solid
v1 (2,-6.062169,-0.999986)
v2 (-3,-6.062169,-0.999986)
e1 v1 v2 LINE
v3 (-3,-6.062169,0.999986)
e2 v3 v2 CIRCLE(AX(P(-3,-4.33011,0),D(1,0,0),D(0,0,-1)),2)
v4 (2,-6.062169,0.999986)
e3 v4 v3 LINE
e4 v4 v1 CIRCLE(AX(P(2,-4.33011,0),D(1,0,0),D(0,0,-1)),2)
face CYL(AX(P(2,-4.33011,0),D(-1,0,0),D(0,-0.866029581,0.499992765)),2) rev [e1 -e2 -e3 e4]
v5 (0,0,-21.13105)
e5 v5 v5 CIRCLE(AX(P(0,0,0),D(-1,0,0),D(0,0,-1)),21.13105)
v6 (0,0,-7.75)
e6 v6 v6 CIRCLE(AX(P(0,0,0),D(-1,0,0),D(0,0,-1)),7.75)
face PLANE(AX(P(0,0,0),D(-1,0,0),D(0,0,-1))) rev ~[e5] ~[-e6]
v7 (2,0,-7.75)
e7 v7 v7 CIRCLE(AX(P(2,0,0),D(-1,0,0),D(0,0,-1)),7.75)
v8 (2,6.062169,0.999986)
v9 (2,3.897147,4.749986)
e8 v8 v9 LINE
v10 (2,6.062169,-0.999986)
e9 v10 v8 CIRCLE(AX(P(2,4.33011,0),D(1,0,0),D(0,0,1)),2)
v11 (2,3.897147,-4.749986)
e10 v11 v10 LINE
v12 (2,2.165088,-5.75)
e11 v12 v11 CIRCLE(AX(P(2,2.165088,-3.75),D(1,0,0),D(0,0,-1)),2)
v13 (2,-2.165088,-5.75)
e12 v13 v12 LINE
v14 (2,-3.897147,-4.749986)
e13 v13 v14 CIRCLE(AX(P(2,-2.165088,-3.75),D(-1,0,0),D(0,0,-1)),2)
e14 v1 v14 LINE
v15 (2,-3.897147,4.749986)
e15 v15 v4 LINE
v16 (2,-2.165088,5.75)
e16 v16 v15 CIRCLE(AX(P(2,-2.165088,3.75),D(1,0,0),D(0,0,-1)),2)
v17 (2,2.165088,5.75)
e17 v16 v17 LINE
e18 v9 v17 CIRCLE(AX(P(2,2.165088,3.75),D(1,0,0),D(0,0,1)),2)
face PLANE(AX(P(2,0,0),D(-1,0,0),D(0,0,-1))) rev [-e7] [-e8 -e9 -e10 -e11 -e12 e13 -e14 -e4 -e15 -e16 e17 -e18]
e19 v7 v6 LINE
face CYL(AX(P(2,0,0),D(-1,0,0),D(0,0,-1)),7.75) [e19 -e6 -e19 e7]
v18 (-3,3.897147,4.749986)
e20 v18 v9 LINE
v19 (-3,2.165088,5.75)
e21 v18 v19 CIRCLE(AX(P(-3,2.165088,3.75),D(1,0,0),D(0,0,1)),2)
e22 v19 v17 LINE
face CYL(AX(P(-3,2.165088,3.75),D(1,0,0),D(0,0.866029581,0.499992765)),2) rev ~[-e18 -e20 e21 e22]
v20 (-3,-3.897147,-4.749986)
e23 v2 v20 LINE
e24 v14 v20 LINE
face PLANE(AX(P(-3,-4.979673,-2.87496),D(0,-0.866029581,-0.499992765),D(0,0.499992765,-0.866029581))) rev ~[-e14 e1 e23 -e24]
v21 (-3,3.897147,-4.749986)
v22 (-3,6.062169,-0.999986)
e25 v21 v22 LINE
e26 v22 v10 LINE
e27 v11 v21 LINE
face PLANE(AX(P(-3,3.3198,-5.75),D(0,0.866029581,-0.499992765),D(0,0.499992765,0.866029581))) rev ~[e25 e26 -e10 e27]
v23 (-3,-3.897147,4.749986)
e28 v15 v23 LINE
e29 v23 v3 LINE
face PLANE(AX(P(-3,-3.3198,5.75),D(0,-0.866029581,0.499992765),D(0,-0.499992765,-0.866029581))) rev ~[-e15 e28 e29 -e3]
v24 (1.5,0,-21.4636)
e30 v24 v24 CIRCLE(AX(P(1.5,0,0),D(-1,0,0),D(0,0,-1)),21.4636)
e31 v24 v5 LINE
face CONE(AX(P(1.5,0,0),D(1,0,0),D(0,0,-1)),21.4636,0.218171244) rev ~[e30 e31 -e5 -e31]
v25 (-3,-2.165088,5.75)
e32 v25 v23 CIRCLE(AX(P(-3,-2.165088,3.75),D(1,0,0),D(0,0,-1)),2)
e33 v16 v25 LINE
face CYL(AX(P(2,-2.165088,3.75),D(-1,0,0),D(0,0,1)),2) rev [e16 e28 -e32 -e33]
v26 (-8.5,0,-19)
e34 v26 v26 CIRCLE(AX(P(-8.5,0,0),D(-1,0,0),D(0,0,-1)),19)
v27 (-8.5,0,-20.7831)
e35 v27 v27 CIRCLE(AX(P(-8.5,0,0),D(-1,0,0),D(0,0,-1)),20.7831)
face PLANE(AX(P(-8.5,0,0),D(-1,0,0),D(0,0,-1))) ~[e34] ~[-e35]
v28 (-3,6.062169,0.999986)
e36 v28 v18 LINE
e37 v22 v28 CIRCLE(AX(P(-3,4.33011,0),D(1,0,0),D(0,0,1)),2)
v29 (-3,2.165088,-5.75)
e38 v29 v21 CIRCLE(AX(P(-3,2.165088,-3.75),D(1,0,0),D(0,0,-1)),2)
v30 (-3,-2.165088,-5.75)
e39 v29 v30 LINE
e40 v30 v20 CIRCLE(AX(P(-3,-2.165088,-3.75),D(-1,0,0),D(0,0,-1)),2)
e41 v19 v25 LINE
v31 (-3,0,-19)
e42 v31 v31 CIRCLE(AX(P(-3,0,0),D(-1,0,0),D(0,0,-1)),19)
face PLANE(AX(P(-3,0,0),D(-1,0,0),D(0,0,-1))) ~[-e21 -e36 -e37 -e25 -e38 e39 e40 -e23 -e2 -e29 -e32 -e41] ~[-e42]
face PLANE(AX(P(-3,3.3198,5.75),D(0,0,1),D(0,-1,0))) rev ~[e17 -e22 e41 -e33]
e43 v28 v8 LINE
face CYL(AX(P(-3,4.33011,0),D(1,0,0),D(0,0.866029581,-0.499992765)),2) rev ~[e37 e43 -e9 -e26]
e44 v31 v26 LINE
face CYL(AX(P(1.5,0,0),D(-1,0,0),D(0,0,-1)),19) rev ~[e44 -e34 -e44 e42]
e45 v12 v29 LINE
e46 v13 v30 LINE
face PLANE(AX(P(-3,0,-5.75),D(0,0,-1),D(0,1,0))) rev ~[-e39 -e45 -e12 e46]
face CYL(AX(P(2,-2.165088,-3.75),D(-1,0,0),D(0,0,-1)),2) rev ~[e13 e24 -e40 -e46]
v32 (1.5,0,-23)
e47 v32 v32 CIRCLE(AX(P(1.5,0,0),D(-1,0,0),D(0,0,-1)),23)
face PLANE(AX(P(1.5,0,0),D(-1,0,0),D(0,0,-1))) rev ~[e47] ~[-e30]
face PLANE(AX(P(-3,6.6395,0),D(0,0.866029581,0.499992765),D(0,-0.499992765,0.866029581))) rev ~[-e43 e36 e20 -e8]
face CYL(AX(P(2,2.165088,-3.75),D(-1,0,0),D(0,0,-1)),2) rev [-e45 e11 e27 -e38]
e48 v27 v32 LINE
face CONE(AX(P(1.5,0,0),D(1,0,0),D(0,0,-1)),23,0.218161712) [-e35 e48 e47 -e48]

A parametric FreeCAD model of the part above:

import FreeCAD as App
import Part
import Sketcher
Q = App.Units.Quantity


def edges_at(feature, points):
    """Names of the edges that pass closest to the given points."""
    edges = feature.Shape.Edges
    near = lambda p: min(range(len(edges)), key=lambda i: edges[i].distToShape(Part.Vertex(*p))[0])
    return sorted({f"Edge{near(p) + 1}" for p in points})

doc = App.newDocument("Part")
params = doc.addObject("Spreadsheet::Sheet", "Params")
for row, (alias, value) in enumerate([
    ("sketch1_width", "2 mm"),
    ("revolution_angle", "360 deg"),
    ("fillet_radius", "2 mm"),
], start=1):
    params.set(f"A{row}", alias)
    params.set(f"B{row}", "=" + value)
    params.setAlias(f"B{row}", alias)

body = doc.addObject("PartDesign::Body", "Body")

sketch1 = body.newObject("Sketcher::SketchObject", "Sketch")
sketch1.AttachmentSupport = (doc.getObject("XZ_Plane"), [""])
sketch1.MapMode = "FlatFace"
sketch1.addGeometry(Part.LineSegment(App.Vector(-3, -5.8, 0), App.Vector(2, -5.8, 0)), False)
sketch1.addGeometry(Part.LineSegment(App.Vector(2, -5.8, 0), App.Vector(2, -7.8, 0)), False)
sketch1.addGeometry(Part.LineSegment(App.Vector(2, -7.8, 0), App.Vector(0, -7.8, 0)), False)
sketch1.addGeometry(Part.LineSegment(App.Vector(0, -7.8, 0), App.Vector(0, -21.1, 0)), False)
sketch1.addGeometry(Part.LineSegment(App.Vector(0, -21.1, 0), App.Vector(1.5, -21.5, 0)), False)
sketch1.addGeometry(Part.LineSegment(App.Vector(1.5, -21.5, 0), App.Vector(1.5, -23, 0)), False)
sketch1.addGeometry(Part.LineSegment(App.Vector(1.5, -23, 0), App.Vector(-8.5, -20.8, 0)), False)
sketch1.addGeometry(Part.LineSegment(App.Vector(-8.5, -20.8, 0), App.Vector(-8.5, -19, 0)), False)
sketch1.addGeometry(Part.LineSegment(App.Vector(-8.5, -19, 0), App.Vector(-3, -19, 0)), False)
sketch1.addGeometry(Part.LineSegment(App.Vector(-3, -19, 0), App.Vector(-3, -5.8, 0)), False)
sketch1.addConstraint(Sketcher.Constraint("Coincident", 0, 2, 1, 1))
sketch1.addConstraint(Sketcher.Constraint("Coincident", 1, 2, 2, 1))
sketch1.addConstraint(Sketcher.Constraint("Coincident", 2, 2, 3, 1))
sketch1.addConstraint(Sketcher.Constraint("Coincident", 3, 2, 4, 1))
sketch1.addConstraint(Sketcher.Constraint("Coincident", 4, 2, 5, 1))
sketch1.addConstraint(Sketcher.Constraint("Coincident", 5, 2, 6, 1))
sketch1.addConstraint(Sketcher.Constraint("Coincident", 6, 2, 7, 1))
sketch1.addConstraint(Sketcher.Constraint("Coincident", 7, 2, 8, 1))
sketch1.addConstraint(Sketcher.Constraint("Coincident", 8, 2, 9, 1))
sketch1.addConstraint(Sketcher.Constraint("Coincident", 9, 2, 0, 1))
sketch1.addConstraint(Sketcher.Constraint("Horizontal", 0))
sketch1.addConstraint(Sketcher.Constraint("Vertical", 1))
sketch1.addConstraint(Sketcher.Constraint("Horizontal", 2))
sketch1.addConstraint(Sketcher.Constraint("Vertical", 3))
sketch1.addConstraint(Sketcher.Constraint("Vertical", 5))
sketch1.addConstraint(Sketcher.Constraint("Vertical", 7))
sketch1.addConstraint(Sketcher.Constraint("Horizontal", 8))
sketch1.addConstraint(Sketcher.Constraint("Vertical", 9))
sketch1.addConstraint(Sketcher.Constraint("PointOnObject", 2, 2, -2))
sketch1.addConstraint(Sketcher.Constraint("Parallel", 4, 6))
sketch1.addConstraint(Sketcher.Constraint("Equal", 2, 1))
sketch1.addConstraint(Sketcher.Constraint("DistanceX", 2, 2, 2, 1, Q("2 mm")))
sketch1.addConstraint(Sketcher.Constraint("DistanceY", 5, 2, -1, 1, Q("23 mm")))
sketch1.addConstraint(Sketcher.Constraint("DistanceX", 8, 2, -1, 1, Q("3 mm")))
sketch1.addConstraint(Sketcher.Constraint("Angle", 4, Q("-12.5003 deg")))
sketch1.addConstraint(Sketcher.Constraint("DistanceX", 6, 2, 4, 2, Q("10 mm")))
sketch1.addConstraint(Sketcher.Constraint("DistanceY", 5, 2, 7, 2, Q("4 mm")))
sketch1.addConstraint(Sketcher.Constraint("DistanceX", -1, 1, 4, 2, Q("1.5 mm")))
sketch1.addConstraint(Sketcher.Constraint("DistanceY", 0, 2, -1, 1, Q("5.75 mm")))
sketch1.addConstraint(Sketcher.Constraint("DistanceY", 3, 2, 3, 1, Q("13.381 mm")))
sketch1.setExpression("Constraints[21]", "Params.sketch1_width")
revolution = body.newObject("PartDesign::Revolution", "Revolution")
revolution.Profile = sketch1
revolution.ReferenceAxis = (sketch1, ["H_Axis"])
revolution.setExpression("Angle", "Params.revolution_angle")

sketch2 = body.newObject("Sketcher::SketchObject", "Sketch001")
sketch2.AttachmentSupport = (doc.getObject("YZ_Plane"), [""])
sketch2.MapMode = "FlatFace"
sketch2.AttachmentOffset = App.Placement(App.Vector(0, 0, -3), App.Rotation())
sketch2.addGeometry(Part.LineSegment(App.Vector(3, -6, 0), App.Vector(-3, -6, 0)), False)
sketch2.addGeometry(Part.LineSegment(App.Vector(-3, -6, 0), App.Vector(-7, 0, 0)), False)
sketch2.addGeometry(Part.LineSegment(App.Vector(-7, 0, 0), App.Vector(-3, 6, 0)), False)
sketch2.addGeometry(Part.LineSegment(App.Vector(-3, 6, 0), App.Vector(3, 6, 0)), False)
sketch2.addGeometry(Part.LineSegment(App.Vector(3, 6, 0), App.Vector(7, 0, 0)), False)
sketch2.addGeometry(Part.LineSegment(App.Vector(7, 0, 0), App.Vector(3, -6, 0)), False)
sketch2.addConstraint(Sketcher.Constraint("Coincident", 0, 2, 1, 1))
sketch2.addConstraint(Sketcher.Constraint("Coincident", 1, 2, 2, 1))
sketch2.addConstraint(Sketcher.Constraint("Coincident", 2, 2, 3, 1))
sketch2.addConstraint(Sketcher.Constraint("Coincident", 3, 2, 4, 1))
sketch2.addConstraint(Sketcher.Constraint("Coincident", 4, 2, 5, 1))
sketch2.addConstraint(Sketcher.Constraint("Coincident", 5, 2, 0, 1))
sketch2.addConstraint(Sketcher.Constraint("Horizontal", 0))
sketch2.addConstraint(Sketcher.Constraint("Horizontal", 3))
sketch2.addConstraint(Sketcher.Constraint("Symmetric", 0, 2, 3, 2, -1, 1))
sketch2.addConstraint(Sketcher.Constraint("Symmetric", 1, 2, 4, 2, -1, 1))
sketch2.addConstraint(Sketcher.Constraint("PointOnObject", 1, 2, -1))
sketch2.addConstraint(Sketcher.Constraint("Parallel", 2, 5))
sketch2.addConstraint(Sketcher.Constraint("Vertical", 0, 2, 2, 2))
sketch2.addConstraint(Sketcher.Constraint("Angle", 1, Q("119.9995 deg")))
sketch2.addConstraint(Sketcher.Constraint("DistanceY", 0, 2, 2, 2, Q("11.5 mm")))
sketch2.addConstraint(Sketcher.Constraint("DistanceX", 0, 2, 0, 1, Q("6.6396 mm")))
pocket1 = body.newObject("PartDesign::Pocket", "Pocket")
pocket1.Profile = sketch2
pocket1.Type = "ThroughAll"
pocket1.Midplane = True
doc.recompute()

fillet = body.newObject("PartDesign::Fillet", "Fillet")
fillet.Base = (pocket1, edges_at(pocket1, [
    (-0.5, -3.32, -5.75),
    (-0.5, 3.32, -5.75),
    (-0.5, 6.639, 0),
    (-0.5, -6.639, 0),
    (-0.5, -3.32, 5.75),
    (-0.5, 3.32, 5.75),
]))
fillet.setExpression("Radius", "Params.fillet_radius")

doc.recompute()
